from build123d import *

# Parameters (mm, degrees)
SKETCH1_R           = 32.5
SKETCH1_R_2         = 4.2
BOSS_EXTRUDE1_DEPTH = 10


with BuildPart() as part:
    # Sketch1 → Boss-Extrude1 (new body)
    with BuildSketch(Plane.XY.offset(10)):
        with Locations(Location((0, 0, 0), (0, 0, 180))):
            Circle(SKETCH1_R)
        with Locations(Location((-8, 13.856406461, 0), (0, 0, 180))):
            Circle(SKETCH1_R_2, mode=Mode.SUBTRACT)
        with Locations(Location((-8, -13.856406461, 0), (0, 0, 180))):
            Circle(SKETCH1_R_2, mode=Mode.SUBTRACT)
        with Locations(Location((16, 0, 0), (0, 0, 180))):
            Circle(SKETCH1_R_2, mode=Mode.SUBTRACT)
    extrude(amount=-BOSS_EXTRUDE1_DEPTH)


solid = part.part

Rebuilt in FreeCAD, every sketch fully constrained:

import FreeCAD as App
import Part
import Sketcher
from FreeCAD import Vector

doc = App.newDocument("Part")
body = doc.addObject("PartDesign::Body", "Body")

# Sketch on XY plane
sketch1 = body.newObject("Sketcher::SketchObject", "Sketch")
sketch1.AttachmentSupport = (doc.getObject("XY_Plane"), [""])
sketch1.MapMode = "FlatFace"
sketch1.AttachmentOffset = App.Placement(Vector(0, 0, 10), App.Rotation())
sketch1.addGeometry(Part.Circle(Vector(0, 0, 0), Vector(0, 0, 1), 32.5), False)
sketch1.addGeometry(Part.Circle(Vector(16, 0, 0), Vector(0, 0, 1), 4.2), False)
sketch1.addGeometry(Part.Circle(Vector(-8, 13.9, 0), Vector(0, 0, 1), 4.2), False)
sketch1.addGeometry(Part.Circle(Vector(-8, -13.9, 0), Vector(0, 0, 1), 4.2), False)
sketch1.addConstraint(Sketcher.Constraint("Coincident", 0, 3, -1, 1))
sketch1.addConstraint(Sketcher.Constraint("Equal", 1, 2))
sketch1.addConstraint(Sketcher.Constraint("Equal", 2, 3))
sketch1.addConstraint(Sketcher.Constraint("Symmetric", 2, 3, 3, 3, -1))
sketch1.addConstraint(Sketcher.Constraint("PointOnObject", 1, 3, -1))
sketch1.addConstraint(Sketcher.Constraint("Diameter", 0, 65.0))
sketch1.addConstraint(Sketcher.Constraint("Diameter", 1, 8.4))
sketch1.addConstraint(Sketcher.Constraint("DistanceX", -1, 1, 1, 3, 16.0))
sketch1.addConstraint(Sketcher.Constraint("DistanceX", 2, 3, -1, 1, 8.0))
sketch1.addConstraint(Sketcher.Constraint("DistanceY", -1, 1, 2, 3, 13.856406))
pad1 = body.newObject("PartDesign::Pad", "Pad")
pad1.Profile = sketch1
pad1.Length = 10
pad1.Reversed = True

doc.recompute()
